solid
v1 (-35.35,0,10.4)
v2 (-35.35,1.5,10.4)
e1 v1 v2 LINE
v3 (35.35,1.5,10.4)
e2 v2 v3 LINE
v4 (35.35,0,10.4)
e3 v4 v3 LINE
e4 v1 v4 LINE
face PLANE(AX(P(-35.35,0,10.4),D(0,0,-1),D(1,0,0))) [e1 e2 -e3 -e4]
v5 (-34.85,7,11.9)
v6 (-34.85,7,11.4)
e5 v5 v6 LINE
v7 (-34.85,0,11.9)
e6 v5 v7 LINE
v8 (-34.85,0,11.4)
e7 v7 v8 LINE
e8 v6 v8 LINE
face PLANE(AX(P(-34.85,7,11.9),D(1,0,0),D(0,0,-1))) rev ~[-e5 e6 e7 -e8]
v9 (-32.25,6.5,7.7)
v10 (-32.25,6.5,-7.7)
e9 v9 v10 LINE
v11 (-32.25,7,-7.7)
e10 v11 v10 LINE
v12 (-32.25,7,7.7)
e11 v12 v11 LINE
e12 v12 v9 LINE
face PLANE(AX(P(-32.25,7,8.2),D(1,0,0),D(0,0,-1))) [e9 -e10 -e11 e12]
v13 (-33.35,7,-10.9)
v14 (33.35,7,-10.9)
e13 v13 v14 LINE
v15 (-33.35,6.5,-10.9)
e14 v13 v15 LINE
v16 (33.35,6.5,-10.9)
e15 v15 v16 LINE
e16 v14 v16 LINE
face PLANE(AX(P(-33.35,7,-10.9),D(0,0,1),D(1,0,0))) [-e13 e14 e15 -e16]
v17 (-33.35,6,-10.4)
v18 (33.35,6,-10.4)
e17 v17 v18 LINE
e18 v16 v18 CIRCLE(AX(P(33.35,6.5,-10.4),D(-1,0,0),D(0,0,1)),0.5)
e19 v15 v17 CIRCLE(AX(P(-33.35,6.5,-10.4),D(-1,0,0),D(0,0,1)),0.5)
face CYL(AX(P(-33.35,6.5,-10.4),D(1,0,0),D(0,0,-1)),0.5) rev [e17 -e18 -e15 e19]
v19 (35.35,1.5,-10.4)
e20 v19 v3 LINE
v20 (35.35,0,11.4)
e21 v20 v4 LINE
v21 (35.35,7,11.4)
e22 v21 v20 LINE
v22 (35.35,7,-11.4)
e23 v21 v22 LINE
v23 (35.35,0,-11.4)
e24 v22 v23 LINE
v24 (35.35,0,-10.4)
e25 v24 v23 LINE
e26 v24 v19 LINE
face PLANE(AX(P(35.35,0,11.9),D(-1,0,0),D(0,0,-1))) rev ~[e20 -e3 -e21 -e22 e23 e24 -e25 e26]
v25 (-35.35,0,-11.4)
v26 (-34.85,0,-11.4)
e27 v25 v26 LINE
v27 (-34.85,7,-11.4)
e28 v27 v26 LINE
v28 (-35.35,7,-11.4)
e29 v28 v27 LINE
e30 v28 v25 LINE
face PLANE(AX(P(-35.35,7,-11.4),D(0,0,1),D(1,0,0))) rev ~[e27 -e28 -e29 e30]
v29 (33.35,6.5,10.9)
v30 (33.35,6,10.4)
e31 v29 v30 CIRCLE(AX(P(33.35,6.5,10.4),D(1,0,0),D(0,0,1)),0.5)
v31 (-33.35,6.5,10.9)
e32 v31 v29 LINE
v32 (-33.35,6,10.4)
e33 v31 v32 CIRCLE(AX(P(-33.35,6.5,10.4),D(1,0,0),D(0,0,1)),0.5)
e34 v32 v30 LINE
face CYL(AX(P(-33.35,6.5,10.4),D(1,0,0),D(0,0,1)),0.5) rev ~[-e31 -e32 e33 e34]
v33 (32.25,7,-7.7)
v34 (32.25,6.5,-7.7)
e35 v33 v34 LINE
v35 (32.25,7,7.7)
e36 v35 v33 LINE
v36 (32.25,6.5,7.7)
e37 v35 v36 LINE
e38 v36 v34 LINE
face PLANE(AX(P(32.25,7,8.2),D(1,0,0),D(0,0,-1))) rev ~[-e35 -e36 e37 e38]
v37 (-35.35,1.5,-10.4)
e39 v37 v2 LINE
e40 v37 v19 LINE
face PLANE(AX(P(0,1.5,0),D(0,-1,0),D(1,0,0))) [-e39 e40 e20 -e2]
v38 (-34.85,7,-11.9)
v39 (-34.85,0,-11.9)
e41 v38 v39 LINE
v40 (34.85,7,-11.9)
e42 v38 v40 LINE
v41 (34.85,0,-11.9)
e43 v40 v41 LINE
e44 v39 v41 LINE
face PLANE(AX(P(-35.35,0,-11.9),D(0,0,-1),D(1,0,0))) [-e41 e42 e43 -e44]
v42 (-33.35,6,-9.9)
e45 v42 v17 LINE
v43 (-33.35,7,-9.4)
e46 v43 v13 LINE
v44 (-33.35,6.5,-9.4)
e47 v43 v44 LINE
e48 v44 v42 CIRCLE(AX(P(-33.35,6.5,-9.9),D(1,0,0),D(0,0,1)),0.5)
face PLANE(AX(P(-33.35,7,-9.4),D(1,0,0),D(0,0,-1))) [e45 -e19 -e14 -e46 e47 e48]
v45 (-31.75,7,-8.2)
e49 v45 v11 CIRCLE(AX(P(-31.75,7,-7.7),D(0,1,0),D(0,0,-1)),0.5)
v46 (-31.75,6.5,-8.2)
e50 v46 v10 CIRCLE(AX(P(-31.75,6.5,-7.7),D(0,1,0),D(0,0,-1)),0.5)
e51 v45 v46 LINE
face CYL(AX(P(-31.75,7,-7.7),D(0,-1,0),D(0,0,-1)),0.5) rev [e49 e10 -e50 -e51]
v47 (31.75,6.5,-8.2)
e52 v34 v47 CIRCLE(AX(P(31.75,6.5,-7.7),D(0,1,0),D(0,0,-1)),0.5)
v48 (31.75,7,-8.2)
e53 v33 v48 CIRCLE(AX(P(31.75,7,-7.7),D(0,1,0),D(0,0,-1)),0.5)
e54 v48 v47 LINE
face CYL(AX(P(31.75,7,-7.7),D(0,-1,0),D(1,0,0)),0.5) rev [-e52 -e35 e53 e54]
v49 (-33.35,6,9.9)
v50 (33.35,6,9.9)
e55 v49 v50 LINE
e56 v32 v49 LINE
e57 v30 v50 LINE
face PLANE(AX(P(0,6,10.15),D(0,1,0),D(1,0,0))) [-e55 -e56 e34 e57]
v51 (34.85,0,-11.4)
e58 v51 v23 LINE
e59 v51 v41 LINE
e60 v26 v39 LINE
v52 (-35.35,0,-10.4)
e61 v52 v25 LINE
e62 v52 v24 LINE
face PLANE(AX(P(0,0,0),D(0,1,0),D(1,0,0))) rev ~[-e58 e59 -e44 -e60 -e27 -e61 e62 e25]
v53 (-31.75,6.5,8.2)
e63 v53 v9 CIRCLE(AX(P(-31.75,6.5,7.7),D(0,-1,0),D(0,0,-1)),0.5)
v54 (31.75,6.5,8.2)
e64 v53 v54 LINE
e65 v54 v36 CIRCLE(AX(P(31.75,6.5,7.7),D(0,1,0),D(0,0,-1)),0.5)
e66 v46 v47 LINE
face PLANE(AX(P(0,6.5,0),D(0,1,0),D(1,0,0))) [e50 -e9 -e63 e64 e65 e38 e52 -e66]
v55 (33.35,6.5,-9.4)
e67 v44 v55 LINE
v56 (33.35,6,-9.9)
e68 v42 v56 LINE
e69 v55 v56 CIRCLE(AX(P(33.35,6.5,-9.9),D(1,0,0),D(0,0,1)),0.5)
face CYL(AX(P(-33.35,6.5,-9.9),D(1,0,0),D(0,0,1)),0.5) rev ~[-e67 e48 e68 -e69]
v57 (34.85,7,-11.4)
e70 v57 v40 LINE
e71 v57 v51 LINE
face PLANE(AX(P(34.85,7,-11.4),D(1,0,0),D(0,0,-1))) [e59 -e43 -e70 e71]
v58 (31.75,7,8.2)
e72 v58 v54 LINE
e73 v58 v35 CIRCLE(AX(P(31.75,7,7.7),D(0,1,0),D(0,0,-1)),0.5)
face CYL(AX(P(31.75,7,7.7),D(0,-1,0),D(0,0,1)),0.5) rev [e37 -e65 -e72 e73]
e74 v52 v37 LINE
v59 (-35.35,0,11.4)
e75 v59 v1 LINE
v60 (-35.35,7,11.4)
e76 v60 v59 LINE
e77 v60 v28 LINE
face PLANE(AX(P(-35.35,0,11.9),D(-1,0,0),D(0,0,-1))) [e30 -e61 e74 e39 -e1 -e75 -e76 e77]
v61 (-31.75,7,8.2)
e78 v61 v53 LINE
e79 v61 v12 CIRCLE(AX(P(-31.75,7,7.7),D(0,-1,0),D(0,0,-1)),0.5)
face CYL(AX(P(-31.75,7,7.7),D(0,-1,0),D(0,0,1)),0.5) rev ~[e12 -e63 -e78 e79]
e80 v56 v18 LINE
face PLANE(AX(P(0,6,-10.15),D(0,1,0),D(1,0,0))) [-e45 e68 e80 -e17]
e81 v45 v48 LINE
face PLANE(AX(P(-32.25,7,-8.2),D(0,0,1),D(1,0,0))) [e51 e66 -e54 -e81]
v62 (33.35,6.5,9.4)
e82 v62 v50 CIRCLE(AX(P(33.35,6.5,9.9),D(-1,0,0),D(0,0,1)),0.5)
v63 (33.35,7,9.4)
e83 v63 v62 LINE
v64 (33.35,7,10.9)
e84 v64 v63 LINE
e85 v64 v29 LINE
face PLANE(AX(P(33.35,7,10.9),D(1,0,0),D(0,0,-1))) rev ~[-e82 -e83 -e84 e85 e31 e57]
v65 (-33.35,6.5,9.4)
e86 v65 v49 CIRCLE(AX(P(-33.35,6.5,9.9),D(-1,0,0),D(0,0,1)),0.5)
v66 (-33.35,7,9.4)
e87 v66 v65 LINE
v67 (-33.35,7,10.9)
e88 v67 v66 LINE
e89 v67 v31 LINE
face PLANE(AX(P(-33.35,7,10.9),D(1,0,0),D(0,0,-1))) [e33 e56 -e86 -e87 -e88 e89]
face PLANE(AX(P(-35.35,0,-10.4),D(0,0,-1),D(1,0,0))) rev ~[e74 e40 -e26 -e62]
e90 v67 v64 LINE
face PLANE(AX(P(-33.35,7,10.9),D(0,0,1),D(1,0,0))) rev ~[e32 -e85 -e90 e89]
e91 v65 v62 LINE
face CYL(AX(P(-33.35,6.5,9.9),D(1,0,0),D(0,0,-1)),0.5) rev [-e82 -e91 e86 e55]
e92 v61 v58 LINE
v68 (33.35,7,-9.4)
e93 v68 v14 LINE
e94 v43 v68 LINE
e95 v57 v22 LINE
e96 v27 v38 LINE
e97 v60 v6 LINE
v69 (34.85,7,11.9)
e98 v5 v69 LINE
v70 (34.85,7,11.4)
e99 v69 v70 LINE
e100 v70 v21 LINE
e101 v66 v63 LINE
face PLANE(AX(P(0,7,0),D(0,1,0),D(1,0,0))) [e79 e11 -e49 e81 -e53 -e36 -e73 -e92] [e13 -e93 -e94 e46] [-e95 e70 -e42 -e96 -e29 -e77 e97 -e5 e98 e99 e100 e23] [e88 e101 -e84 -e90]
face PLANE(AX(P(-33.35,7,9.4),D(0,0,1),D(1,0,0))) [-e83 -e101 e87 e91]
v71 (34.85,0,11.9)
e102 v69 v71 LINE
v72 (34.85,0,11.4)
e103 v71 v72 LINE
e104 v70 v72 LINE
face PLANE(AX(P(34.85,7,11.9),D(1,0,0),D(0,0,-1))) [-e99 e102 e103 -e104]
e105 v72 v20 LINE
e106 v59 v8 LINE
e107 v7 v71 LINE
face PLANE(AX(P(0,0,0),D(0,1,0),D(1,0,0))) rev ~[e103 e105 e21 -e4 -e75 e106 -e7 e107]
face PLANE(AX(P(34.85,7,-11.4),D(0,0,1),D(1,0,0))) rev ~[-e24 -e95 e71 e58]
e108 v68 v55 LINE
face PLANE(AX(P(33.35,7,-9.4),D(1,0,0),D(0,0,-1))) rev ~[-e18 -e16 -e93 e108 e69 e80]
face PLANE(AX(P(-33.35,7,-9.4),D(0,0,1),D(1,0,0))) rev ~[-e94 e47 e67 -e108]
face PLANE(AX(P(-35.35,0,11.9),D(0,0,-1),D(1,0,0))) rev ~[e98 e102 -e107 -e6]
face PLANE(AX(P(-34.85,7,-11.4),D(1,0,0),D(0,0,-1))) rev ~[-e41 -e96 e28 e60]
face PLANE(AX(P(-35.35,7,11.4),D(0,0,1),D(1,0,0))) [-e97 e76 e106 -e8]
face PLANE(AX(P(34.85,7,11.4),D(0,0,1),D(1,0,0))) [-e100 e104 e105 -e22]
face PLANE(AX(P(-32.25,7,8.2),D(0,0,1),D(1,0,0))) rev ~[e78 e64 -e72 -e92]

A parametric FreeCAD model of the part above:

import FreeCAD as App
import Part
import Sketcher
Q = App.Units.Quantity


def edges_at(feature, points):
    """Names of the edges that pass closest to the given points."""
    edges = feature.Shape.Edges
    near = lambda p: min(range(len(edges)), key=lambda i: edges[i].distToShape(Part.Vertex(*p))[0])
    return sorted({f"Edge{near(p) + 1}" for p in points})

doc = App.newDocument("Part")
body = doc.addObject("PartDesign::Body", "Body")

# Sketch on XZ plane
sketch1 = doc.addObject("Sketcher::SketchObject", "Sketch")
body.addObject(sketch1)
sketch1.AttachmentSupport = (doc.XZ_Plane, [""])
sketch1.MapMode = "FlatFace"
sketch1.addGeometry(Part.LineSegment(App.Vector(-35, -12, 0), App.Vector(-35, 12, 0)), False)
sketch1.addGeometry(Part.LineSegment(App.Vector(-35, 12, 0), App.Vector(35, 12, 0)), False)
sketch1.addGeometry(Part.LineSegment(App.Vector(35, 12, 0), App.Vector(35, -12, 0)), False)
sketch1.addGeometry(Part.LineSegment(App.Vector(35, -12, 0), App.Vector(-35, -12, 0)), False)
sketch1.addConstraint(Sketcher.Constraint("Coincident", 0, 2, 1, 1))
sketch1.addConstraint(Sketcher.Constraint("Coincident", 1, 2, 2, 1))
sketch1.addConstraint(Sketcher.Constraint("Coincident", 2, 2, 3, 1))
sketch1.addConstraint(Sketcher.Constraint("Coincident", 3, 2, 0, 1))
sketch1.addConstraint(Sketcher.Constraint("Vertical", 0))
sketch1.addConstraint(Sketcher.Constraint("Horizontal", 1))
sketch1.addConstraint(Sketcher.Constraint("Vertical", 2))
sketch1.addConstraint(Sketcher.Constraint("Horizontal", 3))
sketch1.addConstraint(Sketcher.Constraint("Symmetric", 0, 2, 2, 2, -1, 1))
sketch1.addConstraint(Sketcher.Constraint("DistanceX", 1, 1, 1, 2, Q("70.7 mm")))
sketch1.addConstraint(Sketcher.Constraint("DistanceY", 0, 1, 0, 2, Q("23.8 mm")))
pad1 = doc.addObject("PartDesign::Pad", "Pad")
body.addObject(pad1)
pad1.Profile = sketch1
pad1.Length = 7
pad1.Reversed = True

# Sketch on XZ plane
sketch2 = doc.addObject("Sketcher::SketchObject", "Sketch001")
body.addObject(sketch2)
sketch2.AttachmentSupport = (doc.XZ_Plane, [""])
sketch2.MapMode = "FlatFace"
sketch2.AttachmentOffset = App.Placement(App.Vector(0, 0, -7), App.Rotation())
sketch2.addGeometry(Part.LineSegment(App.Vector(-32, -8, 0), App.Vector(-32, 8, 0)), False)
sketch2.addGeometry(Part.LineSegment(App.Vector(-32, 8, 0), App.Vector(32, 8, 0)), False)
sketch2.addGeometry(Part.LineSegment(App.Vector(32, 8, 0), App.Vector(32, -8, 0)), False)
sketch2.addGeometry(Part.LineSegment(App.Vector(32, -8, 0), App.Vector(-32, -8, 0)), False)
sketch2.addConstraint(Sketcher.Constraint("Coincident", 0, 2, 1, 1))
sketch2.addConstraint(Sketcher.Constraint("Coincident", 1, 2, 2, 1))
sketch2.addConstraint(Sketcher.Constraint("Coincident", 2, 2, 3, 1))
sketch2.addConstraint(Sketcher.Constraint("Coincident", 3, 2, 0, 1))
sketch2.addConstraint(Sketcher.Constraint("Vertical", 0))
sketch2.addConstraint(Sketcher.Constraint("Horizontal", 1))
sketch2.addConstraint(Sketcher.Constraint("Vertical", 2))
sketch2.addConstraint(Sketcher.Constraint("Horizontal", 3))
sketch2.addConstraint(Sketcher.Constraint("Symmetric", 0, 2, 2, 2, -1, 1))
sketch2.addConstraint(Sketcher.Constraint("DistanceX", 1, 1, 1, 2, Q("64.5 mm")))
sketch2.addConstraint(Sketcher.Constraint("DistanceY", 0, 1, 0, 2, Q("16.4 mm")))
pocket1 = doc.addObject("PartDesign::Pocket", "Pocket")
body.addObject(pocket1)
pocket1.Profile = sketch2
pocket1.Length = 0.5
pocket1.Reversed = True
doc.recompute()

fillet = doc.addObject("PartDesign::Fillet", "Fillet")
body.addObject(fillet)
fillet.Base = (pocket1, edges_at(pocket1, [
    (-32.25, 6.75, 8.2),
    (-32.25, 6.75, -8.2),
    (32.25, 6.75, -8.2),
    (32.25, 6.75, 8.2),
]))
fillet.Radius = 0.5

# Sketch on XZ plane
sketch3 = doc.addObject("Sketcher::SketchObject", "Sketch002")
body.addObject(sketch3)
sketch3.AttachmentSupport = (doc.XZ_Plane, [""])
sketch3.MapMode = "FlatFace"
sketch3.AttachmentOffset = App.Placement(App.Vector(0, 0, -7), App.Rotation())
sketch3.addGeometry(Part.LineSegment(App.Vector(-35.4, -11.9, 0), App.Vector(-35.4, -11.4, 0)), False)
sketch3.addGeometry(Part.LineSegment(App.Vector(-35.4, -11.4, 0), App.Vector(-34.9, -11.4, 0)), False)
sketch3.addGeometry(Part.LineSegment(App.Vector(-34.9, -11.4, 0), App.Vector(-34.9, -11.9, 0)), False)
sketch3.addGeometry(Part.LineSegment(App.Vector(-34.9, -11.9, 0), App.Vector(-35.4, -11.9, 0)), False)
sketch3.addGeometry(Part.LineSegment(App.Vector(-35.4, 11.4, 0), App.Vector(-35.4, 11.9, 0)), False)
sketch3.addGeometry(Part.LineSegment(App.Vector(-35.4, 11.9, 0), App.Vector(-34.9, 11.9, 0)), False)
sketch3.addGeometry(Part.LineSegment(App.Vector(-34.9, 11.9, 0), App.Vector(-34.9, 11.4, 0)), False)
sketch3.addGeometry(Part.LineSegment(App.Vector(-34.9, 11.4, 0), App.Vector(-35.4, 11.4, 0)), False)
sketch3.addGeometry(Part.LineSegment(App.Vector(34.9, 11.4, 0), App.Vector(34.9, 11.9, 0)), False)
sketch3.addGeometry(Part.LineSegment(App.Vector(34.9, 11.9, 0), App.Vector(35.4, 11.9, 0)), False)
sketch3.addGeometry(Part.LineSegment(App.Vector(35.4, 11.9, 0), App.Vector(35.4, 11.4, 0)), False)
sketch3.addGeometry(Part.LineSegment(App.Vector(35.4, 11.4, 0), App.Vector(34.9, 11.4, 0)), False)
sketch3.addGeometry(Part.LineSegment(App.Vector(34.9, -11.9, 0), App.Vector(34.9, -11.4, 0)), False)
sketch3.addGeometry(Part.LineSegment(App.Vector(34.9, -11.4, 0), App.Vector(35.4, -11.4, 0)), False)
sketch3.addGeometry(Part.LineSegment(App.Vector(35.4, -11.4, 0), App.Vector(35.4, -11.9, 0)), False)
sketch3.addGeometry(Part.LineSegment(App.Vector(35.4, -11.9, 0), App.Vector(34.9, -11.9, 0)), False)
sketch3.addConstraint(Sketcher.Constraint("Coincident", 0, 2, 1, 1))
sketch3.addConstraint(Sketcher.Constraint("Coincident", 1, 2, 2, 1))
sketch3.addConstraint(Sketcher.Constraint("Coincident", 2, 2, 3, 1))
sketch3.addConstraint(Sketcher.Constraint("Coincident", 3, 2, 0, 1))
sketch3.addConstraint(Sketcher.Constraint("Coincident", 4, 2, 5, 1))
sketch3.addConstraint(Sketcher.Constraint("Coincident", 5, 2, 6, 1))
sketch3.addConstraint(Sketcher.Constraint("Coincident", 6, 2, 7, 1))
sketch3.addConstraint(Sketcher.Constraint("Coincident", 7, 2, 4, 1))
sketch3.addConstraint(Sketcher.Constraint("Coincident", 8, 2, 9, 1))
sketch3.addConstraint(Sketcher.Constraint("Coincident", 9, 2, 10, 1))
sketch3.addConstraint(Sketcher.Constraint("Coincident", 10, 2, 11, 1))
sketch3.addConstraint(Sketcher.Constraint("Coincident", 11, 2, 8, 1))
sketch3.addConstraint(Sketcher.Constraint("Coincident", 12, 2, 13, 1))
sketch3.addConstraint(Sketcher.Constraint("Coincident", 13, 2, 14, 1))
sketch3.addConstraint(Sketcher.Constraint("Coincident", 14, 2, 15, 1))
sketch3.addConstraint(Sketcher.Constraint("Coincident", 15, 2, 12, 1))
sketch3.addConstraint(Sketcher.Constraint("Vertical", 0))
sketch3.addConstraint(Sketcher.Constraint("Horizontal", 1))
sketch3.addConstraint(Sketcher.Constraint("Vertical", 2))
sketch3.addConstraint(Sketcher.Constraint("Horizontal", 3))
sketch3.addConstraint(Sketcher.Constraint("Vertical", 4))
sketch3.addConstraint(Sketcher.Constraint("Horizontal", 5))
sketch3.addConstraint(Sketcher.Constraint("Vertical", 6))
sketch3.addConstraint(Sketcher.Constraint("Horizontal", 7))
sketch3.addConstraint(Sketcher.Constraint("Vertical", 8))
sketch3.addConstraint(Sketcher.Constraint("Horizontal", 9))
sketch3.addConstraint(Sketcher.Constraint("Vertical", 10))
sketch3.addConstraint(Sketcher.Constraint("Horizontal", 11))
sketch3.addConstraint(Sketcher.Constraint("Vertical", 12))
sketch3.addConstraint(Sketcher.Constraint("Horizontal", 13))
sketch3.addConstraint(Sketcher.Constraint("Vertical", 14))
sketch3.addConstraint(Sketcher.Constraint("Horizontal", 15))
sketch3.addConstraint(Sketcher.Constraint("Symmetric", 2, 2, 8, 2, -1, 1))
sketch3.addConstraint(Sketcher.Constraint("Symmetric", 0, 2, 10, 2, -1, 1))
sketch3.addConstraint(Sketcher.Constraint("Symmetric", 6, 2, 12, 2, -1, 1))
sketch3.addConstraint(Sketcher.Constraint("Symmetric", 4, 2, 14, 2, -1, 1))
sketch3.addConstraint(Sketcher.Constraint("Symmetric", 5, 2, 8, 2, -2))
sketch3.addConstraint(Sketcher.Constraint("Symmetric", 7, 2, 10, 2, -2))
sketch3.addConstraint(Sketcher.Constraint("Equal", 15, 0))
sketch3.addConstraint(Sketcher.Constraint("DistanceX", 1, 1, 1, 2, Q("0.5 mm")))
sketch3.addConstraint(Sketcher.Constraint("DistanceY", 0, 2, -1, 1, Q("11.4 mm")))
sketch3.addConstraint(Sketcher.Constraint("DistanceX", 5, 2, 8, 2, Q("69.7 mm")))
pocket2 = doc.addObject("PartDesign::Pocket", "Pocket001")
body.addObject(pocket2)
pocket2.Profile = sketch3
pocket2.Length = 7
pocket2.Reversed = True

# Sketch on XZ plane
sketch4 = doc.addObject("Sketcher::SketchObject", "Sketch003")
body.addObject(sketch4)
sketch4.AttachmentSupport = (doc.XZ_Plane, [""])
sketch4.MapMode = "FlatFace"
sketch4.addGeometry(Part.LineSegment(App.Vector(-35, 10, 0), App.Vector(-35, -10, 0)), False)
sketch4.addGeometry(Part.LineSegment(App.Vector(-35, -10, 0), App.Vector(35, -10, 0)), False)
sketch4.addGeometry(Part.LineSegment(App.Vector(35, -10, 0), App.Vector(35, 10, 0)), False)
sketch4.addGeometry(Part.LineSegment(App.Vector(35, 10, 0), App.Vector(-35, 10, 0)), False)
sketch4.addConstraint(Sketcher.Constraint("Coincident", 0, 2, 1, 1))
sketch4.addConstraint(Sketcher.Constraint("Coincident", 1, 2, 2, 1))
sketch4.addConstraint(Sketcher.Constraint("Coincident", 2, 2, 3, 1))
sketch4.addConstraint(Sketcher.Constraint("Coincident", 3, 2, 0, 1))
sketch4.addConstraint(Sketcher.Constraint("Vertical", 0))
sketch4.addConstraint(Sketcher.Constraint("Horizontal", 1))
sketch4.addConstraint(Sketcher.Constraint("Vertical", 2))
sketch4.addConstraint(Sketcher.Constraint("Horizontal", 3))
sketch4.addConstraint(Sketcher.Constraint("Symmetric", 0, 2, 2, 2, -1, 1))
sketch4.addConstraint(Sketcher.Constraint("DistanceX", 1, 1, 1, 2, Q("70.7 mm")))
sketch4.addConstraint(Sketcher.Constraint("DistanceY", 0, 2, 0, 1, Q("20.8 mm")))
pocket3 = doc.addObject("PartDesign::Pocket", "Pocket002")
body.addObject(pocket3)
pocket3.Profile = sketch4
pocket3.Length = 1.5

# Sketch on XZ plane
sketch5 = doc.addObject("Sketcher::SketchObject", "Sketch004")
body.addObject(sketch5)
sketch5.AttachmentSupport = (doc.XZ_Plane, [""])
sketch5.MapMode = "FlatFace"
sketch5.AttachmentOffset = App.Placement(App.Vector(0, 0, -7), App.Rotation())
sketch5.addGeometry(Part.LineSegment(App.Vector(-33.4, -10.9, 0), App.Vector(-33.4, -9.4, 0)), False)
sketch5.addGeometry(Part.LineSegment(App.Vector(-33.4, -9.4, 0), App.Vector(33.4, -9.4, 0)), False)
sketch5.addGeometry(Part.LineSegment(App.Vector(33.4, -9.4, 0), App.Vector(33.4, -10.9, 0)), False)
sketch5.addGeometry(Part.LineSegment(App.Vector(33.4, -10.9, 0), App.Vector(-33.4, -10.9, 0)), False)
sketch5.addGeometry(Part.LineSegment(App.Vector(-33.4, 9.4, 0), App.Vector(-33.4, 10.9, 0)), False)
sketch5.addGeometry(Part.LineSegment(App.Vector(-33.4, 10.9, 0), App.Vector(33.4, 10.9, 0)), False)
sketch5.addGeometry(Part.LineSegment(App.Vector(33.4, 10.9, 0), App.Vector(33.4, 9.4, 0)), False)
sketch5.addGeometry(Part.LineSegment(App.Vector(33.4, 9.4, 0), App.Vector(-33.4, 9.4, 0)), False)
sketch5.addConstraint(Sketcher.Constraint("Coincident", 0, 2, 1, 1))
sketch5.addConstraint(Sketcher.Constraint("Coincident", 1, 2, 2, 1))
sketch5.addConstraint(Sketcher.Constraint("Coincident", 2, 2, 3, 1))
sketch5.addConstraint(Sketcher.Constraint("Coincident", 3, 2, 0, 1))
sketch5.addConstraint(Sketcher.Constraint("Coincident", 4, 2, 5, 1))
sketch5.addConstraint(Sketcher.Constraint("Coincident", 5, 2, 6, 1))
sketch5.addConstraint(Sketcher.Constraint("Coincident", 6, 2, 7, 1))
sketch5.addConstraint(Sketcher.Constraint("Coincident", 7, 2, 4, 1))
sketch5.addConstraint(Sketcher.Constraint("Vertical", 0))
sketch5.addConstraint(Sketcher.Constraint("Horizontal", 1))
sketch5.addConstraint(Sketcher.Constraint("Vertical", 2))
sketch5.addConstraint(Sketcher.Constraint("Horizontal", 3))
sketch5.addConstraint(Sketcher.Constraint("Vertical", 4))
sketch5.addConstraint(Sketcher.Constraint("Horizontal", 5))
sketch5.addConstraint(Sketcher.Constraint("Vertical", 6))
sketch5.addConstraint(Sketcher.Constraint("Horizontal", 7))
sketch5.addConstraint(Sketcher.Constraint("Symmetric", 2, 2, 4, 2, -1, 1))
sketch5.addConstraint(Sketcher.Constraint("Symmetric", 0, 2, 6, 2, -1, 1))
sketch5.addConstraint(Sketcher.Constraint("Vertical", 3, 2, 4, 2))
sketch5.addConstraint(Sketcher.Constraint("DistanceX", 1, 1, 1, 2, Q("66.7 mm")))
sketch5.addConstraint(Sketcher.Constraint("DistanceY", 0, 1, 0, 2, Q("1.5 mm")))
sketch5.addConstraint(Sketcher.Constraint("DistanceY", 0, 2, -1, 1, Q("9.4 mm")))
pocket4 = doc.addObject("PartDesign::Pocket", "Pocket003")
body.addObject(pocket4)
pocket4.Profile = sketch5
pocket4.Length = 1
pocket4.Reversed = True
doc.recompute()

fillet2 = doc.addObject("PartDesign::Fillet", "Fillet001")
body.addObject(fillet2)
fillet2.Base = (pocket4, edges_at(pocket4, [
    (0, 6, -10.9),
    (0, 6, -9.4),
    (0, 6, 9.4),
    (0, 6, 10.9),
]))
fillet2.Radius = 0.5

doc.recompute()
